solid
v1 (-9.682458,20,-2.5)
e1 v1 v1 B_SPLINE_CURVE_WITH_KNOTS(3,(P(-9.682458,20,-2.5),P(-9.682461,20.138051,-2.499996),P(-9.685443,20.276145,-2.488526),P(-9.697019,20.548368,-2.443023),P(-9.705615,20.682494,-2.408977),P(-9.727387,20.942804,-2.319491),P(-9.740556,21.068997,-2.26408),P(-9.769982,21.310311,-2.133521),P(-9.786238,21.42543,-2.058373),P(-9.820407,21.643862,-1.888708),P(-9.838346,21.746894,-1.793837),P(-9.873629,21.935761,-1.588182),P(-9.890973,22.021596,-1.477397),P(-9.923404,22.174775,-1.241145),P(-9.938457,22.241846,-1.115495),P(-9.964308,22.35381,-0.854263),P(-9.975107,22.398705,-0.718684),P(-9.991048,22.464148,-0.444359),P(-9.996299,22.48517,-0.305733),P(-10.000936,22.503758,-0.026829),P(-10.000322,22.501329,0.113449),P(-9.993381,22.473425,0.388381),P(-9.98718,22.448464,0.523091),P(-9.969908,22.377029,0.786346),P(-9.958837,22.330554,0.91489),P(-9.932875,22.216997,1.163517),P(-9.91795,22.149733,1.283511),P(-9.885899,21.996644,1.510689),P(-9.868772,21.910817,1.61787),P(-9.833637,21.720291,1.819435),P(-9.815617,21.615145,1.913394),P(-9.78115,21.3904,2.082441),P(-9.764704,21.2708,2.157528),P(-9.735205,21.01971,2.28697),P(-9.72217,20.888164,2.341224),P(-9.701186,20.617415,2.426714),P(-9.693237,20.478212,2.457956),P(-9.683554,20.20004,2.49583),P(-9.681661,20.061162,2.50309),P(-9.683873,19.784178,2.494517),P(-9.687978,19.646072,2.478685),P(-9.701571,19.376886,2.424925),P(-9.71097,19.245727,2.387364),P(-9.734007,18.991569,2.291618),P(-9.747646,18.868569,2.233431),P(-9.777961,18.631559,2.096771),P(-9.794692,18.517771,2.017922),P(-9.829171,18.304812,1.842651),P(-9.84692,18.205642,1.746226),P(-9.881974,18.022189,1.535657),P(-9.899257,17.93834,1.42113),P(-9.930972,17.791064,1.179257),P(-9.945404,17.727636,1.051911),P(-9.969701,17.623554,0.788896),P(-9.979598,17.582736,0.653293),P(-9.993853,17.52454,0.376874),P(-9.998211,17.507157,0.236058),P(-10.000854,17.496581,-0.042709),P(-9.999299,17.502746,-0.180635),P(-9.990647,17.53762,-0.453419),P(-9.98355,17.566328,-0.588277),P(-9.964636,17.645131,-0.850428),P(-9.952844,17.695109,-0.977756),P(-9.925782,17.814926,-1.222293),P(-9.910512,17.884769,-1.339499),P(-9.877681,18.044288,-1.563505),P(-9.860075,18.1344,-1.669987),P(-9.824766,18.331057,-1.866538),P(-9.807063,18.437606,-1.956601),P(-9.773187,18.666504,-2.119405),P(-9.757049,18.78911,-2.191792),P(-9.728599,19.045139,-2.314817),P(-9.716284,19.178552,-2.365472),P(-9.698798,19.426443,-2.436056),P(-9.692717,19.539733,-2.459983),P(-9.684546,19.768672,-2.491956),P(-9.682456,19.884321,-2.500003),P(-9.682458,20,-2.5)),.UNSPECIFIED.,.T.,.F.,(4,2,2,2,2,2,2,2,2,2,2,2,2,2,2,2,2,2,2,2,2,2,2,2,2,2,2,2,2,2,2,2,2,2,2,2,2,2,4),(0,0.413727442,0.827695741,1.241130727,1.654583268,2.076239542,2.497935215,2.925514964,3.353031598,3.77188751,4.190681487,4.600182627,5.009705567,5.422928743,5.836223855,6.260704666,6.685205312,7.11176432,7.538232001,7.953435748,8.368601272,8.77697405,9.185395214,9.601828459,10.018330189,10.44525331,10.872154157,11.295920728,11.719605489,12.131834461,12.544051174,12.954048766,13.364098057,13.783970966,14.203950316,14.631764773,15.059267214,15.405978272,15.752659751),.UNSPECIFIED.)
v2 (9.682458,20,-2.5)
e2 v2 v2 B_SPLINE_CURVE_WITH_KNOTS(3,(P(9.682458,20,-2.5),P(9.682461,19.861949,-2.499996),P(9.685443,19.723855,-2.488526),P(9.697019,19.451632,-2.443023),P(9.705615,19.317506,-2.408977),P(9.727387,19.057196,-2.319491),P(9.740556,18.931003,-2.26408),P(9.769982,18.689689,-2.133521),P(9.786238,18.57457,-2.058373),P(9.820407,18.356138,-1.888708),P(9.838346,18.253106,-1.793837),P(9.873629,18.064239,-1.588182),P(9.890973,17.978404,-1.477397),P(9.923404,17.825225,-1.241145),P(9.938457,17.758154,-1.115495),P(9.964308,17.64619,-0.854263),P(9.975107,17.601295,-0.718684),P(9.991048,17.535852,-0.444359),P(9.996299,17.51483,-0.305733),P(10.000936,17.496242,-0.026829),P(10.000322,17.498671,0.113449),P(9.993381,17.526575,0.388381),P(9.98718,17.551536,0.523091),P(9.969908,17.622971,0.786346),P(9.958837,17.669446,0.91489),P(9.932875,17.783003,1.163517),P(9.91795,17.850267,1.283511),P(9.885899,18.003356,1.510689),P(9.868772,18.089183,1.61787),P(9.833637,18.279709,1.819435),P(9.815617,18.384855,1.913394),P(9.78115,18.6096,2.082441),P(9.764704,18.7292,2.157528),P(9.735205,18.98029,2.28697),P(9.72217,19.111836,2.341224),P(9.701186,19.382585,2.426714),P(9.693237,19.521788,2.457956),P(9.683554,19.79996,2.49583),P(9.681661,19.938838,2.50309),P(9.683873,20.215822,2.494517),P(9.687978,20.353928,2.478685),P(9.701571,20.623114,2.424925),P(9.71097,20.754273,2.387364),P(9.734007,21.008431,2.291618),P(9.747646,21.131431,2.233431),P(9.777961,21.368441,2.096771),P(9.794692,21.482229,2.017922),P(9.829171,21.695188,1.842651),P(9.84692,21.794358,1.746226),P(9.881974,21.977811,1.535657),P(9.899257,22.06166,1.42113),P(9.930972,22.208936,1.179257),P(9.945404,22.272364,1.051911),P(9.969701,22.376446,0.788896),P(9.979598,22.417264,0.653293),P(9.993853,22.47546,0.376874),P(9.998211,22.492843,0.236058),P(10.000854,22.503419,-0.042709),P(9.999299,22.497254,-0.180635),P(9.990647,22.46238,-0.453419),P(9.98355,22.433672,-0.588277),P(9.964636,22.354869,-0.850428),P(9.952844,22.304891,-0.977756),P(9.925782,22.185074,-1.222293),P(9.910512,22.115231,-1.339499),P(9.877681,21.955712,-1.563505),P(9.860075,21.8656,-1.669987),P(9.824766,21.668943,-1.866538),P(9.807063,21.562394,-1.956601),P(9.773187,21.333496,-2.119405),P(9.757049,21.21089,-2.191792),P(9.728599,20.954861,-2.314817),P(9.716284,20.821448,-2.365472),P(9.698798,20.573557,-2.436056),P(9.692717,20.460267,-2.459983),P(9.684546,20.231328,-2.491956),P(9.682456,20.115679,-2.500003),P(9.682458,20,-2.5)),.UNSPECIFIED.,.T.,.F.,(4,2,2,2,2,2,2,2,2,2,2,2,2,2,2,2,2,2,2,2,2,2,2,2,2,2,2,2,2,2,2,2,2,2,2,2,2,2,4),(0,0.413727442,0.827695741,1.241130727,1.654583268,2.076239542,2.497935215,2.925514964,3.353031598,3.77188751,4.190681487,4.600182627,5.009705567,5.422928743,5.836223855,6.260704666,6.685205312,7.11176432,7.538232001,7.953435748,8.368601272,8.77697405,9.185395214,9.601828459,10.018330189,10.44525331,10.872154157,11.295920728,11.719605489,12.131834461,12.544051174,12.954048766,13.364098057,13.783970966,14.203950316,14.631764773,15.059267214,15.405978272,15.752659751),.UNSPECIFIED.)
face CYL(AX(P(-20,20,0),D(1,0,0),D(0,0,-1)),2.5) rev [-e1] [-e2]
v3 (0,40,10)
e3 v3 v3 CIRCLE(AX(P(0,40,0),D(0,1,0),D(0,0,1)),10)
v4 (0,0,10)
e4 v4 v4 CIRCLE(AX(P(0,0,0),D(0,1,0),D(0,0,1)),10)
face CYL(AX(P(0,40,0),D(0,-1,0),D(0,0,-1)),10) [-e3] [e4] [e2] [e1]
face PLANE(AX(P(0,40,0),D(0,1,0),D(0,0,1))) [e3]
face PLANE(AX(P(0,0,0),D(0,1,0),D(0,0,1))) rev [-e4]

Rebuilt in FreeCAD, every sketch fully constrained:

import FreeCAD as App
import Part
import Sketcher

doc = App.newDocument("Part")
body = doc.addObject("PartDesign::Body", "Body")

sketch1 = doc.addObject("Sketcher::SketchObject", "Sketch")
body.addObject(sketch1)
sketch1.AttachmentSupport = (doc.XZ_Plane, [""])
sketch1.MapMode = "FlatFace"
sketch1.addGeometry(Part.Circle(App.Vector(0, 0, 0), App.Vector(0, 0, 1), 10), False)
sketch1.addConstraint([
    Sketcher.Constraint("Coincident", 0, 3, -1, 1),
    Sketcher.Constraint("Diameter", 0, 20.0),
])
pad1 = doc.addObject("PartDesign::Pad", "Pad")
body.addObject(pad1)
pad1.Profile = sketch1
pad1.Length = 40
pad1.Reversed = True

sketch2 = doc.addObject("Sketcher::SketchObject", "Sketch001")
body.addObject(sketch2)
sketch2.AttachmentSupport = (doc.YZ_Plane, [""])
sketch2.MapMode = "FlatFace"
sketch2.addGeometry(Part.Circle(App.Vector(20, 0, 0), App.Vector(0, 0, 1), 2.5), False)
sketch2.addConstraint([
    Sketcher.Constraint("PointOnObject", 0, 3, -1),
    Sketcher.Constraint("Diameter", 0, 5.0),
    Sketcher.Constraint("DistanceX", -1, 1, 0, 3, 20.0),
])
pocket1 = doc.addObject("PartDesign::Pocket", "Pocket")
body.addObject(pocket1)
pocket1.Profile = sketch2
pocket1.Length = 40
pocket1.Midplane = True

doc.recompute()
